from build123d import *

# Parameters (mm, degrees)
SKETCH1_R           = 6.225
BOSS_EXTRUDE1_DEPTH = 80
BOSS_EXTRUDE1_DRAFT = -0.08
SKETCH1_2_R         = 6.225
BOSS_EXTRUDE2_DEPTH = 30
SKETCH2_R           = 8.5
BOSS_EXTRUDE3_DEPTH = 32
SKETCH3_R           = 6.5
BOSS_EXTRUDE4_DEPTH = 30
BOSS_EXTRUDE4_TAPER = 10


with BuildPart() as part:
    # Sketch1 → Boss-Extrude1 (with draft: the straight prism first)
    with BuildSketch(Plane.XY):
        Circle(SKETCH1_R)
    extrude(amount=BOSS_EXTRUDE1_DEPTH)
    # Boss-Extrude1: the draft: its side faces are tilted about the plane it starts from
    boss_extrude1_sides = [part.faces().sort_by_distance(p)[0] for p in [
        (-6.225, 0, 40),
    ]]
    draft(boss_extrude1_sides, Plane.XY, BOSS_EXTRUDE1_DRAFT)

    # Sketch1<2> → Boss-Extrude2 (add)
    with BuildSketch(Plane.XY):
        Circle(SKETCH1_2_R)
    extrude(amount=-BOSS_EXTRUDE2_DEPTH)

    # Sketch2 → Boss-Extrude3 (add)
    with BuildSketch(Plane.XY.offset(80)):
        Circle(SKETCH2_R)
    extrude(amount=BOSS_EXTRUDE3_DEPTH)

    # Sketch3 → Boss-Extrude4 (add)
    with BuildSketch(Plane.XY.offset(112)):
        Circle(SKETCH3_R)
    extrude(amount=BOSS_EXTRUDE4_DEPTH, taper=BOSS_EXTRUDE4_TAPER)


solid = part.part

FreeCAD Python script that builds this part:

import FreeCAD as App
import Part
import Sketcher

V = App.Vector


def faces_at(feature, points):
    """Names of the faces that lie closest to the given points."""
    faces = feature.Shape.Faces
    near = lambda p: min(range(len(faces)), key=lambda i: faces[i].distToShape(Part.Vertex(*p))[0])
    return sorted({f"Face{near(p) + 1}" for p in points})

doc = App.newDocument("Part")
body = doc.addObject("PartDesign::Body", "Body")

sketch1 = doc.addObject("Sketcher::SketchObject", "Sketch")
body.addObject(sketch1)
sketch1.AttachmentSupport = (doc.XY_Plane, [""])
sketch1.MapMode = "FlatFace"
sketch1.addGeometry(Part.Circle(V(0, 0, 0), V(0, 0, 1), 6), False)
sketch1.addConstraint(Sketcher.Constraint("Coincident", 0, 3, -1, 1))
sketch1.addConstraint(Sketcher.Constraint("Diameter", 0, 12.45))
pad1 = doc.addObject("PartDesign::Pad", "Pad")
body.addObject(pad1)
pad1.Profile = sketch1
pad1.Length = 80
doc.recompute()

draft = doc.addObject("PartDesign::Draft", "Draft")
body.addObject(draft)
draft.Base = (pad1, faces_at(pad1, [(-6.225, 0, 40)]))
draft.NeutralPlane = (doc.XY_Plane, [""])
draft.Angle = 0.08
draft.Reversed = True

sketch2 = doc.addObject("Sketcher::SketchObject", "Sketch001")
body.addObject(sketch2)
sketch2.AttachmentSupport = (doc.XY_Plane, [""])
sketch2.MapMode = "FlatFace"
sketch2.addGeometry(Part.Circle(V(0, 0, 0), V(0, 0, 1), 6), False)
sketch2.addConstraint(Sketcher.Constraint("Coincident", 0, 3, -1, 1))
sketch2.addConstraint(Sketcher.Constraint("Diameter", 0, 12.45))
pad2 = doc.addObject("PartDesign::Pad", "Pad001")
body.addObject(pad2)
pad2.Profile = sketch2
pad2.Length = 30
pad2.Reversed = True

sketch3 = doc.addObject("Sketcher::SketchObject", "Sketch002")
body.addObject(sketch3)
sketch3.AttachmentSupport = (doc.XY_Plane, [""])
sketch3.MapMode = "FlatFace"
sketch3.AttachmentOffset = App.Placement(V(0, 0, 80), App.Rotation())
sketch3.addGeometry(Part.Circle(V(0, 0, 0), V(0, 0, 1), 8), False)
sketch3.addConstraint(Sketcher.Constraint("Coincident", 0, 3, -1, 1))
sketch3.addConstraint(Sketcher.Constraint("Diameter", 0, 17.0))
pad3 = doc.addObject("PartDesign::Pad", "Pad002")
body.addObject(pad3)
pad3.Profile = sketch3
pad3.Length = 32

sketch4 = doc.addObject("Sketcher::SketchObject", "Sketch003")
body.addObject(sketch4)
sketch4.AttachmentSupport = (doc.XY_Plane, [""])
sketch4.MapMode = "FlatFace"
sketch4.AttachmentOffset = App.Placement(V(0, 0, 112), App.Rotation())
sketch4.addGeometry(Part.Circle(V(0, 0, 0), V(0, 0, 1), 6), False)
sketch4.addConstraint(Sketcher.Constraint("Coincident", 0, 3, -1, 1))
sketch4.addConstraint(Sketcher.Constraint("Diameter", 0, 13.0))
pad4 = doc.addObject("PartDesign::Pad", "Pad003")
body.addObject(pad4)
pad4.Profile = sketch4
pad4.Length = 30
pad4.TaperAngle = -10

doc.recompute()
